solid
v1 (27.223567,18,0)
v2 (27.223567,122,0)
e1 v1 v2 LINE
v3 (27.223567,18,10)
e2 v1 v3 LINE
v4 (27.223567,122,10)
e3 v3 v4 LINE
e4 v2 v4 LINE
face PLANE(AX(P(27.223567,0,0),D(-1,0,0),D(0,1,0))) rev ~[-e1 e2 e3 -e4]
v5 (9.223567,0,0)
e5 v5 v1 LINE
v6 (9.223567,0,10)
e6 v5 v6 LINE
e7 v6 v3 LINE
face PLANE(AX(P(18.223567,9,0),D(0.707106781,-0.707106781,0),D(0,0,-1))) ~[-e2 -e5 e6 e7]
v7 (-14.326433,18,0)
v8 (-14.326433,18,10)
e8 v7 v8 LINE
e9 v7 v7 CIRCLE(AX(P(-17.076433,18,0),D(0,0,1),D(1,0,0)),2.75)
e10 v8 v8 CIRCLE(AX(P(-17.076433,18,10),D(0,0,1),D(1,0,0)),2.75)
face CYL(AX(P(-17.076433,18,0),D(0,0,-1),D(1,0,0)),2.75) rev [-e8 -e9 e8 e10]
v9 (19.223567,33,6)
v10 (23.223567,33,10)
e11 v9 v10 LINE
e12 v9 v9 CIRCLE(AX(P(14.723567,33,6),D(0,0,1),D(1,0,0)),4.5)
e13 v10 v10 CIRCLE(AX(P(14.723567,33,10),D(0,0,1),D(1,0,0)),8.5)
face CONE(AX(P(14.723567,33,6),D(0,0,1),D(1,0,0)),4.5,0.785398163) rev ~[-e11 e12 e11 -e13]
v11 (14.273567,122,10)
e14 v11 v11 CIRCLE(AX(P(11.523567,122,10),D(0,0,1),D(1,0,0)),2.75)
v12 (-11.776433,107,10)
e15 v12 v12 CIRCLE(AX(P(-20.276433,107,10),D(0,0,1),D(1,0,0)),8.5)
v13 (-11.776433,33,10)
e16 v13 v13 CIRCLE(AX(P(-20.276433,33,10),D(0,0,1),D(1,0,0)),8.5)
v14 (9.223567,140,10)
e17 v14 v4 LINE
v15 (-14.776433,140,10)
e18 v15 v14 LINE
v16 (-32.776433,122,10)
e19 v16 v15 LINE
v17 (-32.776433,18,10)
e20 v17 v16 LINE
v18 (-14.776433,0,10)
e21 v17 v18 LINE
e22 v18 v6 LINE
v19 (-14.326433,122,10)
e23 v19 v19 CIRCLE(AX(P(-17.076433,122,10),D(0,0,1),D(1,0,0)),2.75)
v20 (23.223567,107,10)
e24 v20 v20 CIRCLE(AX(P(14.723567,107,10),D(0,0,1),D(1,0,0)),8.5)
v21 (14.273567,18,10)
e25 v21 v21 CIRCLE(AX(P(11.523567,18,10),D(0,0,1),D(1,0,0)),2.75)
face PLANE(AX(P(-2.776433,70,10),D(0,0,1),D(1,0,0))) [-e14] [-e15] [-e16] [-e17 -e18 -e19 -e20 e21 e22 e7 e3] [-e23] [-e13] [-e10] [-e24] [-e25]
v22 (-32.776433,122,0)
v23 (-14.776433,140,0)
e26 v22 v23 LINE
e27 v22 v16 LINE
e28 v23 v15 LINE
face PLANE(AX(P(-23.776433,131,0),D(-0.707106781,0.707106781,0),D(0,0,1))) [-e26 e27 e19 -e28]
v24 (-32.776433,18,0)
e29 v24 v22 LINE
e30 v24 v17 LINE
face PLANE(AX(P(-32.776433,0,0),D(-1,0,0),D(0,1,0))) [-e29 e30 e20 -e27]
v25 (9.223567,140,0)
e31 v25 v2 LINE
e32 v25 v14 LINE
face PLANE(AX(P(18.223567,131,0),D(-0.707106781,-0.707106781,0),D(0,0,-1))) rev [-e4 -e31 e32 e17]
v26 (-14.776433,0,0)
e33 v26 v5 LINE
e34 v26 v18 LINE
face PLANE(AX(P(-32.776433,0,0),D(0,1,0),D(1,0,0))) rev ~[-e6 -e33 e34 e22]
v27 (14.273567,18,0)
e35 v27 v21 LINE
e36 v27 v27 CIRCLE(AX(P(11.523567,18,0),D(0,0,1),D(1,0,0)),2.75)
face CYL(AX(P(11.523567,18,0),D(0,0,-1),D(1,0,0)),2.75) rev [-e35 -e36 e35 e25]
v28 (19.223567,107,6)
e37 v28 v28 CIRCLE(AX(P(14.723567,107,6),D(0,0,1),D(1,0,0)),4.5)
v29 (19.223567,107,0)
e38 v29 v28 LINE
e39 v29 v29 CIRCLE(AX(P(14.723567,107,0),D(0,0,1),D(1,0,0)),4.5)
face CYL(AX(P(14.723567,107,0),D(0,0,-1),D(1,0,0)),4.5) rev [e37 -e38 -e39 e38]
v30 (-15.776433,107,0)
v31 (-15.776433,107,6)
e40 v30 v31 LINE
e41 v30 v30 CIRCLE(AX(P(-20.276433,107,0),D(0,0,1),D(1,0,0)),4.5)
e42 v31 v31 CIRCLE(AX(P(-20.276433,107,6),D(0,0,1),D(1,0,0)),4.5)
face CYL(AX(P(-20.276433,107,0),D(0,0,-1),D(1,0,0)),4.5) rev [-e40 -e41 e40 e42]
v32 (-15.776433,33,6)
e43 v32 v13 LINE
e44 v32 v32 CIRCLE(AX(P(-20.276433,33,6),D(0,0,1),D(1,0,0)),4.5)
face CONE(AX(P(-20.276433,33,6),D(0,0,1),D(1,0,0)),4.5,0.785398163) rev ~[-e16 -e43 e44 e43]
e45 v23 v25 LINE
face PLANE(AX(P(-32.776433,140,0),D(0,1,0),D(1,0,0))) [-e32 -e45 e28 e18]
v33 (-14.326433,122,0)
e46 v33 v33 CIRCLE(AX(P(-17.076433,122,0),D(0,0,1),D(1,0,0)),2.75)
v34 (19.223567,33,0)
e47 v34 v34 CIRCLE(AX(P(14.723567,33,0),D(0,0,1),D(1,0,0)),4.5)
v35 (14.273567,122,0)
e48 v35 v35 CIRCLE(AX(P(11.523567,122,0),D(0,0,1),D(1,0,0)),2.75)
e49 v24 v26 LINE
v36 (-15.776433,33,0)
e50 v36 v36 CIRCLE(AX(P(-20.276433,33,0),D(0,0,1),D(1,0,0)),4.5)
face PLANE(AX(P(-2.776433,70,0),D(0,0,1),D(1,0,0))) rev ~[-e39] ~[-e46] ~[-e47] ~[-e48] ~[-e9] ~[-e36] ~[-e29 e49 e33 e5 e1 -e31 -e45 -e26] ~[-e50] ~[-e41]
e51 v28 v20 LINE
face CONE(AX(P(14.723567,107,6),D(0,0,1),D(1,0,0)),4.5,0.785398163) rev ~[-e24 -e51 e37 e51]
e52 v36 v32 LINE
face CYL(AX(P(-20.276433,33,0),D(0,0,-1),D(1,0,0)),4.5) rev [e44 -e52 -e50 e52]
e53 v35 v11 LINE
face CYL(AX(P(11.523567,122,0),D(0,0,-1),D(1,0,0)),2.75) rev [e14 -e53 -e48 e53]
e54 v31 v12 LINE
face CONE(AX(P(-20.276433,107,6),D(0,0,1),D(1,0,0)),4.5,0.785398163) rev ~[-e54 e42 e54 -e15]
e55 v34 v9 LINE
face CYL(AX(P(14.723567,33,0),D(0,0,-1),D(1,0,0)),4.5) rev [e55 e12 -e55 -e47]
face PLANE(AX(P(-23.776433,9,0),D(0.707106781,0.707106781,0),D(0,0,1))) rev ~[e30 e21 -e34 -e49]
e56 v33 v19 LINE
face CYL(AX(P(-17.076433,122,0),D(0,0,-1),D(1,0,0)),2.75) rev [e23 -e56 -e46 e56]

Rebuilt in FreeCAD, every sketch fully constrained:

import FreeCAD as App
import Part
import Sketcher
Q = App.Units.Quantity


def edges_at(feature, points):
    """Names of the edges that pass closest to the given points."""
    edges = feature.Shape.Edges
    near = lambda p: min(range(len(edges)), key=lambda i: edges[i].distToShape(Part.Vertex(*p))[0])
    return sorted({f"Edge{near(p) + 1}" for p in points})

doc = App.newDocument("Part")
params = doc.addObject("Spreadsheet::Sheet", "Params")
for row, (alias, value) in enumerate([
    ("sketch1_diameter", "9 mm"),
    ("sketch1_diameter2", "5.5 mm"),
    ("sketch1_width", "60 mm"),
    ("sketch1_height", "140 mm"),
    ("pad1_length", "10 mm"),
    ("chamfer_size", "4 mm"),
    ("chamfer2_size", "18 mm"),
], start=1):
    params.set(f"A{row}", alias)
    params.set(f"B{row}", "=" + value)
    params.setAlias(f"B{row}", alias)

body = doc.addObject("PartDesign::Body", "Body")

# Sketch on XY plane
sketch1 = body.newObject("Sketcher::SketchObject", "Sketch")
sketch1.AttachmentSupport = (doc.getObject("XY_Plane"), [""])
sketch1.MapMode = "FlatFace"
sketch1.addGeometry([
    Part.LineSegment(App.Vector(-32.8, 140, 0), App.Vector(-32.8, 0, 0)),  # 0
    Part.LineSegment(App.Vector(-32.8, 0, 0), App.Vector(27.2, 0, 0)),  # 1
    Part.LineSegment(App.Vector(27.2, 0, 0), App.Vector(27.2, 140, 0)),  # 2
    Part.LineSegment(App.Vector(27.2, 140, 0), App.Vector(-32.8, 140, 0)),  # 3
    Part.Circle(App.Vector(-17.1, 18, 0), App.Vector(0, 0, 1), 2.8),  # 4
    Part.Circle(App.Vector(-20.3, 33, 0), App.Vector(0, 0, 1), 4.5),  # 5
    Part.Circle(App.Vector(11.5, 18, 0), App.Vector(0, 0, 1), 2.8),  # 6
    Part.Circle(App.Vector(14.7, 33, 0), App.Vector(0, 0, 1), 4.5),  # 7
    Part.Circle(App.Vector(-20.3, 107, 0), App.Vector(0, 0, 1), 4.5),  # 8
    Part.Circle(App.Vector(-17.1, 122, 0), App.Vector(0, 0, 1), 2.8),  # 9
    Part.Circle(App.Vector(14.7, 107, 0), App.Vector(0, 0, 1), 4.5),  # 10
    Part.Circle(App.Vector(11.5, 122, 0), App.Vector(0, 0, 1), 2.8),  # 11
], False)
sketch1.addConstraint([
    Sketcher.Constraint("Coincident", 0, 2, 1, 1),
    Sketcher.Constraint("Coincident", 1, 2, 2, 1),
    Sketcher.Constraint("Coincident", 2, 2, 3, 1),
    Sketcher.Constraint("Coincident", 3, 2, 0, 1),
    Sketcher.Constraint("Vertical", 0),
    Sketcher.Constraint("Horizontal", 1),
    Sketcher.Constraint("Vertical", 2),
    Sketcher.Constraint("Horizontal", 3),
    Sketcher.Constraint("Equal", 4, 6),
    Sketcher.Constraint("Equal", 5, 7),
    Sketcher.Constraint("Equal", 7, 8),
    Sketcher.Constraint("Equal", 6, 9),
    Sketcher.Constraint("Equal", 8, 10),
    Sketcher.Constraint("Equal", 9, 11),
    Sketcher.Constraint("PointOnObject", 0, 2, -1),
    Sketcher.Constraint("Horizontal", 4, 3, 6, 3),
    Sketcher.Constraint("Horizontal", 5, 3, 7, 3),
    Sketcher.Constraint("Horizontal", 8, 3, 10, 3),
    Sketcher.Constraint("Horizontal", 9, 3, 11, 3),
    Sketcher.Constraint("Vertical", 5, 3, 8, 3),
    Sketcher.Constraint("Vertical", 4, 3, 9, 3),
    Sketcher.Constraint("Vertical", 7, 3, 10, 3),
    Sketcher.Constraint("Vertical", 6, 3, 11, 3),
    Sketcher.Constraint("Diameter", 5, Q("9 mm")),
    Sketcher.Constraint("Diameter", 4, Q("5.5 mm")),
    Sketcher.Constraint("DistanceX", 1, 1, 1, 2, Q("60 mm")),
    Sketcher.Constraint("DistanceY", 0, 2, 0, 1, Q("140 mm")),
    Sketcher.Constraint("DistanceY", -1, 1, 4, 3, Q("18 mm")),
    Sketcher.Constraint("DistanceY", -1, 1, 5, 3, Q("33 mm")),
    Sketcher.Constraint("DistanceY", -1, 1, 8, 3, Q("107 mm")),
    Sketcher.Constraint("DistanceY", -1, 1, 9, 3, Q("122 mm")),
    Sketcher.Constraint("DistanceX", 5, 3, 7, 3, Q("35 mm")),
    Sketcher.Constraint("DistanceX", 5, 3, 4, 3, Q("3.2 mm")),
    Sketcher.Constraint("DistanceX", 4, 3, 6, 3, Q("28.6 mm")),
    Sketcher.Constraint("DistanceX", 0, 2, 4, 3, Q("15.7 mm")),
    Sketcher.Constraint("DistanceX", 4, 3, -1, 1, Q("17.076433 mm")),
])
sketch1.setExpression("Constraints[23]", "Params.sketch1_diameter")
sketch1.setExpression("Constraints[24]", "Params.sketch1_diameter2")
sketch1.setExpression("Constraints[25]", "Params.sketch1_width")
sketch1.setExpression("Constraints[26]", "Params.sketch1_height")
pad1 = body.newObject("PartDesign::Pad", "Pad")
pad1.Profile = sketch1
pad1.setExpression("Length", "Params.pad1_length")
doc.recompute()

chamfer = body.newObject("PartDesign::Chamfer", "Chamfer")
chamfer.Base = (pad1, edges_at(pad1, [
    (-24.776, 33, 10),
    (10.224, 33, 10),
    (10.224, 107, 10),
    (-24.776, 107, 10),
]))
chamfer.setExpression("Size", "Params.chamfer_size")
doc.recompute()

chamfer2 = body.newObject("PartDesign::Chamfer", "Chamfer001")
chamfer2.Base = (chamfer, edges_at(chamfer, [
    (-32.776, 0, 5),
    (27.224, 0, 5),
    (27.224, 140, 5),
    (-32.776, 140, 5),
]))
chamfer2.setExpression("Size", "Params.chamfer2_size")

doc.recompute()
